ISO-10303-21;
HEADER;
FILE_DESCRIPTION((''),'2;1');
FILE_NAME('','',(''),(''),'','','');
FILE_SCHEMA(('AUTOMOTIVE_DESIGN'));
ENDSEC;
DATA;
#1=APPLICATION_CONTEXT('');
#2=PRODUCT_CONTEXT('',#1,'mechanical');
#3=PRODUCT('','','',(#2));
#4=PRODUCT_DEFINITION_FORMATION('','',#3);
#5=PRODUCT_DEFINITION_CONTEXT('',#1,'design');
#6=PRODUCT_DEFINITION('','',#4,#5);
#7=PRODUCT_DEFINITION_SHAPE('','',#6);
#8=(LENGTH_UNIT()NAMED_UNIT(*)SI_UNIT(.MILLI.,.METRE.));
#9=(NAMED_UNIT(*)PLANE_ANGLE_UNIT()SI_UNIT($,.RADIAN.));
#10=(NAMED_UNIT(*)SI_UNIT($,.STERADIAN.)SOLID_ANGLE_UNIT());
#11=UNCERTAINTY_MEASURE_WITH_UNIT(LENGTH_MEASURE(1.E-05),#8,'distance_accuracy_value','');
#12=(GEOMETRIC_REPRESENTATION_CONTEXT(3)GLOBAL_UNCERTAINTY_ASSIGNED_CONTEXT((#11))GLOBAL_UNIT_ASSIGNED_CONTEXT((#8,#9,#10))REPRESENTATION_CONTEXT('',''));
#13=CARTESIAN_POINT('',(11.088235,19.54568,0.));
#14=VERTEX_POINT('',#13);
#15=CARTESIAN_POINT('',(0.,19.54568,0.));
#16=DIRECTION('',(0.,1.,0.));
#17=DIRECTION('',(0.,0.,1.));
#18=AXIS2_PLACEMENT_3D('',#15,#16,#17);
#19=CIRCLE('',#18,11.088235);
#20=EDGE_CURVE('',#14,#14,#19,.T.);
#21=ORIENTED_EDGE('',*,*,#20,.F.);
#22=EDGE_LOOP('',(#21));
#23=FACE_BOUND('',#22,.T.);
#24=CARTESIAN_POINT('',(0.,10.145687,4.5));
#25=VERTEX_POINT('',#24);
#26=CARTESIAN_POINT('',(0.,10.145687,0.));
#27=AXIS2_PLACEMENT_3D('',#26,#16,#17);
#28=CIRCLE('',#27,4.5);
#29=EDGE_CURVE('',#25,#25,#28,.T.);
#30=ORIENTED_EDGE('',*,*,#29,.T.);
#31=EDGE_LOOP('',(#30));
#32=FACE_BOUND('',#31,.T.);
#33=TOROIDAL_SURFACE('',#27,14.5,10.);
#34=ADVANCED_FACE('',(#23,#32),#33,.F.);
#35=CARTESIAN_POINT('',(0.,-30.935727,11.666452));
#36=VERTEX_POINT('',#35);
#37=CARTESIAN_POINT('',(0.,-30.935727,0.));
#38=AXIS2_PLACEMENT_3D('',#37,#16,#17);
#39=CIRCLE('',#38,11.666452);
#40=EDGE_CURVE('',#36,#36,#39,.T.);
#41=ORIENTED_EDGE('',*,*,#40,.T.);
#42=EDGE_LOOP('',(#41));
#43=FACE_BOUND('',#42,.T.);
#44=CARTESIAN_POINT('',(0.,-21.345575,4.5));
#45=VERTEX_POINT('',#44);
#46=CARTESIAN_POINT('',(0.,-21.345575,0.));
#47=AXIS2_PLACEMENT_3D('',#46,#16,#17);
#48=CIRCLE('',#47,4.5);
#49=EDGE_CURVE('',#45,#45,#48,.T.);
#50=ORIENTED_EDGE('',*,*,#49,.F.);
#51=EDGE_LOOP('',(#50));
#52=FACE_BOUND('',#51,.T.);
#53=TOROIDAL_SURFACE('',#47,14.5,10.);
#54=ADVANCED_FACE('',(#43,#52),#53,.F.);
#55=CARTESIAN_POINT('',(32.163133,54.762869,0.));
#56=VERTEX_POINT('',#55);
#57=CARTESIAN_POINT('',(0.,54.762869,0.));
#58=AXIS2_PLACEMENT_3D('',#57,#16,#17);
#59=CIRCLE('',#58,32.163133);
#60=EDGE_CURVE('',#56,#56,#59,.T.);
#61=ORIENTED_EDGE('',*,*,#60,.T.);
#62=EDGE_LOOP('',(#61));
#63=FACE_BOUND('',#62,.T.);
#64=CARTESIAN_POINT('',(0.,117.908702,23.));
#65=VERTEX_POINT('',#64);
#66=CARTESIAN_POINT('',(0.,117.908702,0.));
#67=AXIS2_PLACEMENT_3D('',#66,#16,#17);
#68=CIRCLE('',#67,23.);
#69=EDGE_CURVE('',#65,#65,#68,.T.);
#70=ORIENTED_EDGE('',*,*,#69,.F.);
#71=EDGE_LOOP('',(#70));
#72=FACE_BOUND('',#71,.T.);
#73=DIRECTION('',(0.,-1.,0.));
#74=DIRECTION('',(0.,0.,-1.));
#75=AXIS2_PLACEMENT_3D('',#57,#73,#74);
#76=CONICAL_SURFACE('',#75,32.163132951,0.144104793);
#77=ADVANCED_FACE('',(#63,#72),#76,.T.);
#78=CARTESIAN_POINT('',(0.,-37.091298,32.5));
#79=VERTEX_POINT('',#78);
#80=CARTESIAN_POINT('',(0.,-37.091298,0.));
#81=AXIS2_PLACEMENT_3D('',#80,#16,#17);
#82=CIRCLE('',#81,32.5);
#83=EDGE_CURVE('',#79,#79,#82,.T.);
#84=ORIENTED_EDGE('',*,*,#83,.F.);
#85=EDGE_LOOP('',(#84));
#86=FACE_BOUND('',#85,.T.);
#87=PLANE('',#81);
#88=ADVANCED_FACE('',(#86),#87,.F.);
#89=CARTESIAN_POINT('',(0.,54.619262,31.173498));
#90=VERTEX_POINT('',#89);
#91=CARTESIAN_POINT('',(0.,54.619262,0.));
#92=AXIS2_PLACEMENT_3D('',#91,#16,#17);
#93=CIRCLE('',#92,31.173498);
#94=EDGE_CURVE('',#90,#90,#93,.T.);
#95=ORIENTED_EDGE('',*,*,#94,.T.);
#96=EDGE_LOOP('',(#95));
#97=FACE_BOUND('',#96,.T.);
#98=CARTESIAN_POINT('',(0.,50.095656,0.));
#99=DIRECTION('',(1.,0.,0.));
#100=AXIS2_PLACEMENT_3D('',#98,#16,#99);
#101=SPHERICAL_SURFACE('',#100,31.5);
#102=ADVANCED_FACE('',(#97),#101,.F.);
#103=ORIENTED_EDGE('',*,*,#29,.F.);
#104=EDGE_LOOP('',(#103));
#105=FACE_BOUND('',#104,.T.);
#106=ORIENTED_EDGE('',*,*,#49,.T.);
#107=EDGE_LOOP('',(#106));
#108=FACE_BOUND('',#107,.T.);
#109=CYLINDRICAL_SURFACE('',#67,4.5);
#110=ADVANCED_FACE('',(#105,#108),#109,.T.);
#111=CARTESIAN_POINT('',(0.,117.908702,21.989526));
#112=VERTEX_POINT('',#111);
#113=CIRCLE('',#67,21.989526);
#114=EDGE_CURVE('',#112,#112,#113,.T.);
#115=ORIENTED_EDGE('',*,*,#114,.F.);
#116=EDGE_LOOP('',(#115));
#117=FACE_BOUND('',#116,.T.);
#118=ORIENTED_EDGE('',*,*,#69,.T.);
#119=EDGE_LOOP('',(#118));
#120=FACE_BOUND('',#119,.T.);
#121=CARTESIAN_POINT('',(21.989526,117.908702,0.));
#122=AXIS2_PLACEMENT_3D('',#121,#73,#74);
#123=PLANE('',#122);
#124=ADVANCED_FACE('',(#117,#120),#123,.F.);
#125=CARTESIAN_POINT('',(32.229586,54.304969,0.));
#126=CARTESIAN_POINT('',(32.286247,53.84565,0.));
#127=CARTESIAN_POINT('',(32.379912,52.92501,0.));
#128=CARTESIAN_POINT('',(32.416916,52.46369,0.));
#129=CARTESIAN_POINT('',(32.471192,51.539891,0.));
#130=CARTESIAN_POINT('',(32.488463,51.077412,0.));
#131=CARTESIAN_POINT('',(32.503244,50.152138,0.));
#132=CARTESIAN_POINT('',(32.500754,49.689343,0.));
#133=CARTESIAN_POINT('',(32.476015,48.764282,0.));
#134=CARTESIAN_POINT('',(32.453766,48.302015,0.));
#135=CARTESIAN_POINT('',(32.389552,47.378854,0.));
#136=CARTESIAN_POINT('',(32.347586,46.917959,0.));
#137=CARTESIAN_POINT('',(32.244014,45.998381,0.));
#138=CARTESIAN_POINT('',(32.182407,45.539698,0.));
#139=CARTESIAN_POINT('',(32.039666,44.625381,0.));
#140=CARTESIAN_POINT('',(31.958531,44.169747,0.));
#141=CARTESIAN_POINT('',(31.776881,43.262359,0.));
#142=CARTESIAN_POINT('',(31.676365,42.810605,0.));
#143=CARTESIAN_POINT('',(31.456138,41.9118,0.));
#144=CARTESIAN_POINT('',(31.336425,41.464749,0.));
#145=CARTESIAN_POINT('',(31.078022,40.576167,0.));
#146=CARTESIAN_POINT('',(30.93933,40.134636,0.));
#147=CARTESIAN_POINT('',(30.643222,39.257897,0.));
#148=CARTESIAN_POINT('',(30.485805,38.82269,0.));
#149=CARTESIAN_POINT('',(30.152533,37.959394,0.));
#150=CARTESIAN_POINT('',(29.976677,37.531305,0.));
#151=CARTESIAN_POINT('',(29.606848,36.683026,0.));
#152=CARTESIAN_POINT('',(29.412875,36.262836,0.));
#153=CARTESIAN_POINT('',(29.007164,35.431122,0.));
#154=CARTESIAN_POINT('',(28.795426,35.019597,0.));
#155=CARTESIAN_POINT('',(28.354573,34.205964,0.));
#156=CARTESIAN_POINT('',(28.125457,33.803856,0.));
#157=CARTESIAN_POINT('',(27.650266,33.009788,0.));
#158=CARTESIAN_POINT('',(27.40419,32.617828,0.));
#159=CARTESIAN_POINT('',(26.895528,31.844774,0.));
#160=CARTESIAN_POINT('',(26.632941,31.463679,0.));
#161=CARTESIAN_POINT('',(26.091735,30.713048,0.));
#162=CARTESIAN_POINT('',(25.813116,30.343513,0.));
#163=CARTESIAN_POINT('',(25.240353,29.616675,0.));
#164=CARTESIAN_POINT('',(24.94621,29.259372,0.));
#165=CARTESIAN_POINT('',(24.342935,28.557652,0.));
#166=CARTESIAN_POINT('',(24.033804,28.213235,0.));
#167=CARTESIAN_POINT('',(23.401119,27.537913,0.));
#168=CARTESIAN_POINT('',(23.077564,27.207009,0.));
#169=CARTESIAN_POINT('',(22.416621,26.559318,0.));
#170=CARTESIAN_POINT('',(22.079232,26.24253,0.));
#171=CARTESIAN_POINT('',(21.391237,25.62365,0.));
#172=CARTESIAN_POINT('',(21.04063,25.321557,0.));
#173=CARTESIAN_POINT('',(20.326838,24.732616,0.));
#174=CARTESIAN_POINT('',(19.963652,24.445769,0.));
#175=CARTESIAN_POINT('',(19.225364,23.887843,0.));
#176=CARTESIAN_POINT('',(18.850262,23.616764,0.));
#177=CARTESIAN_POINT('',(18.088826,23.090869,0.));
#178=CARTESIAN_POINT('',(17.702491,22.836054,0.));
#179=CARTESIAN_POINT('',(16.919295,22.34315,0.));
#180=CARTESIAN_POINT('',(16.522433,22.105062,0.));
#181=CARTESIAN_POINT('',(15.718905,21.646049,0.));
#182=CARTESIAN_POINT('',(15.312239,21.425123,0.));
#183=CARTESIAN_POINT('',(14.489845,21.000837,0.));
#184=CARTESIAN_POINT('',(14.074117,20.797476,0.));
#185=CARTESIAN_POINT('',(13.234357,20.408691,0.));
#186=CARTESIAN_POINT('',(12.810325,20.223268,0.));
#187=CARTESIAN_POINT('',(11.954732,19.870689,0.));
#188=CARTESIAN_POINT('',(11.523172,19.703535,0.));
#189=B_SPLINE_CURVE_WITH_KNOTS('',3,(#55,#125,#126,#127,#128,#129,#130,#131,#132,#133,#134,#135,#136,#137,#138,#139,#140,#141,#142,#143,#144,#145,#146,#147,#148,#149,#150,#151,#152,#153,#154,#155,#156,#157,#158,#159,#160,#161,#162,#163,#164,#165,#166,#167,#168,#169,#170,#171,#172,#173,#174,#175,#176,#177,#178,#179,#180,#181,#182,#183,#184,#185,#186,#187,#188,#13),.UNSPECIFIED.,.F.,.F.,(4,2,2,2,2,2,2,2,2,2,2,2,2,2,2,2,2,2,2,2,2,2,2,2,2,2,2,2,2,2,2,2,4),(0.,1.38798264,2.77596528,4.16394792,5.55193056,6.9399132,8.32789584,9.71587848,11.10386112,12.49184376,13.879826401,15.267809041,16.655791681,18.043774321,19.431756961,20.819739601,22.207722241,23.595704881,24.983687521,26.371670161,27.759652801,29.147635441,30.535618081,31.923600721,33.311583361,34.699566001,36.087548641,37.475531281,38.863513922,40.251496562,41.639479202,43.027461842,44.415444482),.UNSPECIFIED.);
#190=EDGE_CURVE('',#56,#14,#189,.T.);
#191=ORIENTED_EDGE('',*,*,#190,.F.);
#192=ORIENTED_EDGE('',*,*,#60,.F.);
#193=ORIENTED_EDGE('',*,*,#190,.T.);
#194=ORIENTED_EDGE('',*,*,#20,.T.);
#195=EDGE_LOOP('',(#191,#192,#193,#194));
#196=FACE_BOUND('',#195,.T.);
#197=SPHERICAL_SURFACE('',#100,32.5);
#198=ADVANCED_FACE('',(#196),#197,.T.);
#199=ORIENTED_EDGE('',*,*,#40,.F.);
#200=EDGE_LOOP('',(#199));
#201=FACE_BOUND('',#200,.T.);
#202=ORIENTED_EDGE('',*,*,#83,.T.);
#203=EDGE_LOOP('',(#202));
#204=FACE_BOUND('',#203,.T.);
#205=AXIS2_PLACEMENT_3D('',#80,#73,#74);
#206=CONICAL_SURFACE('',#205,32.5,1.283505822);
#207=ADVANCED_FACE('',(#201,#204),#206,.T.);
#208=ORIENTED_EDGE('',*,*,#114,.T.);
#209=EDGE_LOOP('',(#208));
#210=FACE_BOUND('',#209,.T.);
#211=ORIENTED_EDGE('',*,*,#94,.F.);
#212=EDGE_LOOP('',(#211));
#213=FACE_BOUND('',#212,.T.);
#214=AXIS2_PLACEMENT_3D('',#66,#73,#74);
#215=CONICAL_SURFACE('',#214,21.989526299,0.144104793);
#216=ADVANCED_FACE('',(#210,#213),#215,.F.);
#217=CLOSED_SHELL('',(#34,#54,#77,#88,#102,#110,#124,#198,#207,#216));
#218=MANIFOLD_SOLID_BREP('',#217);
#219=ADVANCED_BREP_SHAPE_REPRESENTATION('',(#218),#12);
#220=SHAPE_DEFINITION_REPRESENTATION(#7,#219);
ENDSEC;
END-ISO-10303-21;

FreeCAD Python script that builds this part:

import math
import FreeCAD as App
import Part
import Sketcher
Q = App.Units.Quantity

doc = App.newDocument("Part")
body = doc.addObject("PartDesign::Body", "Body")

sketch1 = body.newObject("Sketcher::SketchObject", "Sketch")
sketch1.AttachmentSupport = (doc.getObject("XY_Plane"), [""])
sketch1.MapMode = "FlatFace"
sketch1.addGeometry([
    Part.LineSegment(App.Vector(0, -37.1, 0), App.Vector(32.5, -37.1, 0)),
    Part.LineSegment(App.Vector(32.5, -37.1, 0), App.Vector(11.7, -30.9, 0)),
    Part.ArcOfCircle(Part.Circle(App.Vector(14.5, -21.3, 0), App.Vector(0, 0, 1), 10), math.radians(-180), math.radians(-106)),
    Part.LineSegment(App.Vector(4.5, -21.3, 0), App.Vector(4.5, 10.1, 0)),
    Part.ArcOfCircle(Part.Circle(App.Vector(14.5, 10.1, 0), App.Vector(0, 0, 1), 10), math.radians(110), math.radians(180)),
    Part.ArcOfCircle(Part.Circle(App.Vector(0, 50.1, 0), App.Vector(0, 0, 1), 32.5), math.radians(-70), math.radians(8)),
    Part.LineSegment(App.Vector(32.2, 54.8, 0), App.Vector(23, 117.9, 0)),
    Part.LineSegment(App.Vector(23, 117.9, 0), App.Vector(22, 117.9, 0)),
    Part.LineSegment(App.Vector(22, 117.9, 0), App.Vector(31.2, 54.6, 0)),
    Part.ArcOfCircle(Part.Circle(App.Vector(0, 50.1, 0), App.Vector(0, 0, 1), 31.5), math.radians(-90), math.radians(8)),
    Part.LineSegment(App.Vector(0, 18.6, 0), App.Vector(0, -37.1, 0)),
], False)
sketch1.addConstraint([
    Sketcher.Constraint("Coincident", 0, 2, 1, 1),
    Sketcher.Constraint("Tangent", 1, 2, 2, 2),
    Sketcher.Constraint("Tangent", 2, 1, 3, 1),
    Sketcher.Constraint("Tangent", 3, 2, 4, 2),
    Sketcher.Constraint("Tangent", 4, 1, 5, 1),
    Sketcher.Constraint("Tangent", 5, 2, 6, 1),
    Sketcher.Constraint("Coincident", 6, 2, 7, 1),
    Sketcher.Constraint("Coincident", 7, 2, 8, 1),
    Sketcher.Constraint("Tangent", 8, 2, 9, 2),
    Sketcher.Constraint("Coincident", 9, 1, 10, 1),
    Sketcher.Constraint("Coincident", 10, 2, 0, 1),
    Sketcher.Constraint("Horizontal", 0),
    Sketcher.Constraint("Vertical", 3),
    Sketcher.Constraint("Horizontal", 7),
    Sketcher.Constraint("Vertical", 10),
    Sketcher.Constraint("Coincident", 9, 3, 5, 3),
    Sketcher.Constraint("Equal", 2, 4),
    Sketcher.Constraint("PointOnObject", 5, 3, -2),
    Sketcher.Constraint("PointOnObject", 9, 1, -2),
    Sketcher.Constraint("Parallel", 6, 8),
    Sketcher.Constraint("Radius", 2, Q("10 mm")),
    Sketcher.Constraint("Radius", 5, Q("32.5 mm")),
    Sketcher.Constraint("Radius", 9, Q("31.5 mm")),
    Sketcher.Constraint("DistanceX", 0, 1, 0, 2, Q("32.5 mm")),
    Sketcher.Constraint("DistanceX", -1, 1, 6, 2, Q("23 mm")),
    Sketcher.Constraint("DistanceX", 2, 3, 0, 2, Q("18 mm")),
    Sketcher.Constraint("Distance", 1, Q("21.723899 mm")),
    Sketcher.Constraint("DistanceY", 0, 2, -1, 1, Q("37.091298 mm")),
    Sketcher.Constraint("DistanceY", -1, 1, 6, 2, Q("117.908702 mm")),
    Sketcher.Constraint("DistanceX", -1, 1, 8, 2, Q("31.173498 mm")),
])
revolution = body.newObject("PartDesign::Revolution", "Revolution")
revolution.Profile = sketch1
revolution.ReferenceAxis = (sketch1, ["V_Axis"])
revolution.Angle = 360

doc.recompute()
